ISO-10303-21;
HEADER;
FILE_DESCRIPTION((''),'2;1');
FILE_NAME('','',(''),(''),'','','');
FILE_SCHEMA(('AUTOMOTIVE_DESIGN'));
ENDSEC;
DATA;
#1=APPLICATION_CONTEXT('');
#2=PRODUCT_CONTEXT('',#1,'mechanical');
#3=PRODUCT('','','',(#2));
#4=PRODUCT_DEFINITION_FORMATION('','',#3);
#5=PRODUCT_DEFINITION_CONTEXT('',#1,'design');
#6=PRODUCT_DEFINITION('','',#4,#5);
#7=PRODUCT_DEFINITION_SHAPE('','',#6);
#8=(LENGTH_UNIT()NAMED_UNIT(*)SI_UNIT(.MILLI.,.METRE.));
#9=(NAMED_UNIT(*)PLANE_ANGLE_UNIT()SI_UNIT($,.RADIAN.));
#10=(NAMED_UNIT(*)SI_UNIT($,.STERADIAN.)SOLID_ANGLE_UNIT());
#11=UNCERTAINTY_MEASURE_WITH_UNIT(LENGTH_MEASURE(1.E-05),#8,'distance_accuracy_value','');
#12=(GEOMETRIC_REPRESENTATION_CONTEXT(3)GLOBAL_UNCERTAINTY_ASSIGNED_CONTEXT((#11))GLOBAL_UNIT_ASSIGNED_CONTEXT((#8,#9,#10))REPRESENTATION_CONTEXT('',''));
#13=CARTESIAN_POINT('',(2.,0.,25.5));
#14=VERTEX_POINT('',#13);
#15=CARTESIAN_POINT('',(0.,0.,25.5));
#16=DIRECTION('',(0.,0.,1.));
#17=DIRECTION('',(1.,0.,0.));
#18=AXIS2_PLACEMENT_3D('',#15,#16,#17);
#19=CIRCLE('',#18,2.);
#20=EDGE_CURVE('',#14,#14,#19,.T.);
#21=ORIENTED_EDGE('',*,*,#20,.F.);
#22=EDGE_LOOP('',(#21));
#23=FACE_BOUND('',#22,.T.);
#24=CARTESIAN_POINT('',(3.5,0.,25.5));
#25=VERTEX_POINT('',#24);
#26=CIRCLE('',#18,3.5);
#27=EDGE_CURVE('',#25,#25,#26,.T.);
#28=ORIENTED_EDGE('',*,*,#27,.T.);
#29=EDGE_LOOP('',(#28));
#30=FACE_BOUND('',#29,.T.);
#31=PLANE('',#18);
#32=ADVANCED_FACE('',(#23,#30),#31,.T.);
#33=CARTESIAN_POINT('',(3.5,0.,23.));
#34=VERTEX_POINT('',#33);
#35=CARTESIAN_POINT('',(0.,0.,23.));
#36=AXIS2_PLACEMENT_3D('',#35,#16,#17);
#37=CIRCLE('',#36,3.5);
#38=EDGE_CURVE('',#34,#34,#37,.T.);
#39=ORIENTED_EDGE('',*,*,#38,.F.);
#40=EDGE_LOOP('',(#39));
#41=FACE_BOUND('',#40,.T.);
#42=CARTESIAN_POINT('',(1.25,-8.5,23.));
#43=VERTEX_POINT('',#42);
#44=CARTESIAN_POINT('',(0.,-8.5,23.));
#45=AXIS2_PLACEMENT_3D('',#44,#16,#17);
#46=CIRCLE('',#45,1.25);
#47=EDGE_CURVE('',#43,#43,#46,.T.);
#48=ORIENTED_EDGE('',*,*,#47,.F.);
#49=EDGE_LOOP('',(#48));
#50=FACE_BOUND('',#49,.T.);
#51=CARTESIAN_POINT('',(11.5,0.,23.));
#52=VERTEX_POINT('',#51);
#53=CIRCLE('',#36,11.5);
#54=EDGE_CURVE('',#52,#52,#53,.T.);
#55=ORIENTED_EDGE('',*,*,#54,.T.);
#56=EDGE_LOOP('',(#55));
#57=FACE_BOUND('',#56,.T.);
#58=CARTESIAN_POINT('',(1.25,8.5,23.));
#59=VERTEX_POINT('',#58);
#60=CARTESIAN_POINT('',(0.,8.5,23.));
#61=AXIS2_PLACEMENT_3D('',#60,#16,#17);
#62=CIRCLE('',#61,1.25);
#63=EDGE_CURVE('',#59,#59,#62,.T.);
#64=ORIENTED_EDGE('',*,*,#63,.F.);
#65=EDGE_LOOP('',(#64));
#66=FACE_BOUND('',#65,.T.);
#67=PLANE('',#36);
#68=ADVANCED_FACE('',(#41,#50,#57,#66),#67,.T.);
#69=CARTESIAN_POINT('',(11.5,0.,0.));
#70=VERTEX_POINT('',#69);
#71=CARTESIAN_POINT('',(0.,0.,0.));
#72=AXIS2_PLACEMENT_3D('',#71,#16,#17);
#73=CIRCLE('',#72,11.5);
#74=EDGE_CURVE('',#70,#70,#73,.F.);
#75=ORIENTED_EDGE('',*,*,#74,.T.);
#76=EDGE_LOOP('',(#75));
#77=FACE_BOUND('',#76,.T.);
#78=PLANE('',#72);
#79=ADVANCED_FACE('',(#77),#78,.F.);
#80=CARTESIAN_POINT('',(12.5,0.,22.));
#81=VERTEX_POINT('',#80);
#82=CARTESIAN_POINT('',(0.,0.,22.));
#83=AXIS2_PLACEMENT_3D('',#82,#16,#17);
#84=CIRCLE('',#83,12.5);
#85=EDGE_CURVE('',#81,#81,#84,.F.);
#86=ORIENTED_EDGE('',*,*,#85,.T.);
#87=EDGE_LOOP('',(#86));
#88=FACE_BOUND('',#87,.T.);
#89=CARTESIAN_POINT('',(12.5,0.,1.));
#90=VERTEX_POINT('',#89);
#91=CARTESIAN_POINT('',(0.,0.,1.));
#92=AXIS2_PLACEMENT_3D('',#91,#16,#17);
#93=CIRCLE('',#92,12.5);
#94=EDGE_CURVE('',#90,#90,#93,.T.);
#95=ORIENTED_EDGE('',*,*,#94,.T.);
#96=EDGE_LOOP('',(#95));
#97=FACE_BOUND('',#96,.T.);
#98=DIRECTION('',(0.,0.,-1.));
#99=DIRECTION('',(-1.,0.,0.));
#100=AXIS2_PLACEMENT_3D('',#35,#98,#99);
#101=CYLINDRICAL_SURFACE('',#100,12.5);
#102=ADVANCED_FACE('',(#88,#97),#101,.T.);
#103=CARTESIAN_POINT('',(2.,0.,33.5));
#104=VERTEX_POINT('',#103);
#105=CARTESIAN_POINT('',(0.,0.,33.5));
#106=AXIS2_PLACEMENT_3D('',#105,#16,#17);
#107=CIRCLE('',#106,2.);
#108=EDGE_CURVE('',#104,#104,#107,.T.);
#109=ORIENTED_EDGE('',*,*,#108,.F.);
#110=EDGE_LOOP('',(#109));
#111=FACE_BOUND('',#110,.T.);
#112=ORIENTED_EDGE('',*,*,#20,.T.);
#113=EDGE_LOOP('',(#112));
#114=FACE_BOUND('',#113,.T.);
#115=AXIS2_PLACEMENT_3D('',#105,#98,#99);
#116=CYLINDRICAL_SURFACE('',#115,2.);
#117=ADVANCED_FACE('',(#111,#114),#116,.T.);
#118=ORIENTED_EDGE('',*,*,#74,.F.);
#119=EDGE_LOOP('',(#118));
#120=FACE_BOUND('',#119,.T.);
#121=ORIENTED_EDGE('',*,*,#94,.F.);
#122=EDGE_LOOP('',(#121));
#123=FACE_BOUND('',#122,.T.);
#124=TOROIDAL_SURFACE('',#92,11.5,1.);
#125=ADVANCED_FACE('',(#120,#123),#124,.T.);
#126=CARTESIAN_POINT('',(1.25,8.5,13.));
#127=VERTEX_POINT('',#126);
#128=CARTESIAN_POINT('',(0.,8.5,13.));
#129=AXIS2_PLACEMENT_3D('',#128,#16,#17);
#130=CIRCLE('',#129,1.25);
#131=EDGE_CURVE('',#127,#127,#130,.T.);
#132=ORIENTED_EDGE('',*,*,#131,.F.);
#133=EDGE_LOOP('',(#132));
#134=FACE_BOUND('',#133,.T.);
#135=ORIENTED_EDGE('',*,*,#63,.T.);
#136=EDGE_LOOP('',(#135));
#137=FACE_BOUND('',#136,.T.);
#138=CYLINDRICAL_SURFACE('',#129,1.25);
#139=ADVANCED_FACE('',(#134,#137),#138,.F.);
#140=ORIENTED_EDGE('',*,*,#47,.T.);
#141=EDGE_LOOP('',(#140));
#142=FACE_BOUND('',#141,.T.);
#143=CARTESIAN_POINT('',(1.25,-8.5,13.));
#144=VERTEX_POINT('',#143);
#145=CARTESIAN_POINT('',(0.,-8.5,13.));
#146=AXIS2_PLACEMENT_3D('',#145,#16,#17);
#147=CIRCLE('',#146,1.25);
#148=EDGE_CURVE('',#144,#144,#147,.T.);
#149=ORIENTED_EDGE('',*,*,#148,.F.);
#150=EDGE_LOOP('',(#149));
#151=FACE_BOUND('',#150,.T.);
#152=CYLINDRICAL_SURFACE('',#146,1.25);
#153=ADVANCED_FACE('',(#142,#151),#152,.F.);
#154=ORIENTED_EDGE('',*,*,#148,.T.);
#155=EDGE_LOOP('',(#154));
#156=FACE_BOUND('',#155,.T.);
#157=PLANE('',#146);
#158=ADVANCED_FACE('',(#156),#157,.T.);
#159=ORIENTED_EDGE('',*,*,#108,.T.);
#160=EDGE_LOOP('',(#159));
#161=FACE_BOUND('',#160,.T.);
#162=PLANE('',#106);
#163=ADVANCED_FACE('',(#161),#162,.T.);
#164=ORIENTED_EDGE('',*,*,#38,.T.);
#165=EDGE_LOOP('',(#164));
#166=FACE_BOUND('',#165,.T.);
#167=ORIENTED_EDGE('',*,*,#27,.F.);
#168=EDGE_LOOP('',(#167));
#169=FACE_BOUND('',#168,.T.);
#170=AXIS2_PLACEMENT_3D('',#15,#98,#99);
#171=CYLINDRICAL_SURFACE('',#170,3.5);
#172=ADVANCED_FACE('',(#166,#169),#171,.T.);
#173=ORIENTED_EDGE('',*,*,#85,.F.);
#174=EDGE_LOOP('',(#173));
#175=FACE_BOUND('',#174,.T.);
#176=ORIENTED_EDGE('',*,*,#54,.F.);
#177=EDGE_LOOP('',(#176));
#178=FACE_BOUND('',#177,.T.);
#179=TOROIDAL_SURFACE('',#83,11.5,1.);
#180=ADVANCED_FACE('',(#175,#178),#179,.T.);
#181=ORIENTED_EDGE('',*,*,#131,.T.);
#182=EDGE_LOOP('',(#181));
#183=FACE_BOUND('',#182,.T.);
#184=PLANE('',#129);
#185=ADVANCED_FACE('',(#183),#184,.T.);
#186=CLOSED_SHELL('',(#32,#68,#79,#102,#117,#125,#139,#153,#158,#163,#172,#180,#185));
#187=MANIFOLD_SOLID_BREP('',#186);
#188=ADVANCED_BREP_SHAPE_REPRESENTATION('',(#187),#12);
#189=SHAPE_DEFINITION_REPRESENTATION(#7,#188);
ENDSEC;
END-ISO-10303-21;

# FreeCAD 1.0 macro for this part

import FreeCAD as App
import Part
import Sketcher
from FreeCAD import Vector


def edges_at(feature, points):
    """Names of the edges that pass closest to the given points."""
    edges = feature.Shape.Edges
    near = lambda p: min(range(len(edges)), key=lambda i: edges[i].distToShape(Part.Vertex(*p))[0])
    return sorted({f"Edge{near(p) + 1}" for p in points})

doc = App.newDocument("Part")
body = doc.addObject("PartDesign::Body", "Body")

# Sketch on XY plane
sketch1 = doc.addObject("Sketcher::SketchObject", "Sketch")
body.addObject(sketch1)
sketch1.AttachmentSupport = (doc.XY_Plane, [""])
sketch1.MapMode = "FlatFace"
sketch1.addGeometry(Part.Circle(Vector(0, 0, 0), Vector(0, 0, 1), 12), False)
sketch1.addConstraint([
    Sketcher.Constraint("Coincident", 0, 3, -1, 1),
    Sketcher.Constraint("Diameter", 0, 25.0),
])
pad1 = doc.addObject("PartDesign::Pad", "Pad")
body.addObject(pad1)
pad1.Profile = sketch1
pad1.Length = 23

# Sketch on XY plane
sketch2 = doc.addObject("Sketcher::SketchObject", "Sketch001")
body.addObject(sketch2)
sketch2.AttachmentSupport = (doc.XY_Plane, [""])
sketch2.MapMode = "FlatFace"
sketch2.AttachmentOffset = App.Placement(Vector(0, 0, 23), App.Rotation())
sketch2.addGeometry(Part.Circle(Vector(0, 0, 0), Vector(0, 0, 1), 3.5), False)
sketch2.addConstraint([
    Sketcher.Constraint("Coincident", 0, 3, -1, 1),
    Sketcher.Constraint("Diameter", 0, 7.0),
])
pad2 = doc.addObject("PartDesign::Pad", "Pad001")
body.addObject(pad2)
pad2.Profile = sketch2
pad2.Length = 2.5
doc.recompute()

fillet = doc.addObject("PartDesign::Fillet", "Fillet")
body.addObject(fillet)
fillet.Base = (pad2, edges_at(pad2, [(-12.5, 0, 0), (-12.5, 0, 23)]))
fillet.Radius = 1

# Sketch on XY plane
sketch3 = doc.addObject("Sketcher::SketchObject", "Sketch002")
body.addObject(sketch3)
sketch3.AttachmentSupport = (doc.XY_Plane, [""])
sketch3.MapMode = "FlatFace"
sketch3.AttachmentOffset = App.Placement(Vector(0, 0, 25.5), App.Rotation())
sketch3.addGeometry(Part.Circle(Vector(0, 0, 0), Vector(0, 0, 1), 2), False)
sketch3.addConstraint([
    Sketcher.Constraint("Coincident", 0, 3, -1, 1),
    Sketcher.Constraint("Diameter", 0, 4.0),
])
pad3 = doc.addObject("PartDesign::Pad", "Pad002")
body.addObject(pad3)
pad3.Profile = sketch3
pad3.Length = 8

# Sketch on XY plane
sketch4 = doc.addObject("Sketcher::SketchObject", "Sketch003")
body.addObject(sketch4)
sketch4.AttachmentSupport = (doc.XY_Plane, [""])
sketch4.MapMode = "FlatFace"
sketch4.AttachmentOffset = App.Placement(Vector(0, 0, 23), App.Rotation())
sketch4.addGeometry([
    Part.Circle(Vector(0, 8.5, 0), Vector(0, 0, 1), 1.2),
    Part.Circle(Vector(0, -8.5, 0), Vector(0, 0, 1), 1.2),
], False)
sketch4.addConstraint([
    Sketcher.Constraint("Equal", 0, 1),
    Sketcher.Constraint("Symmetric", 0, 3, 1, 3, -1, 1),
    Sketcher.Constraint("PointOnObject", 0, 3, -2),
    Sketcher.Constraint("Diameter", 0, 2.5),
    Sketcher.Constraint("DistanceY", 1, 3, 0, 3, 17.0),
])
pocket1 = doc.addObject("PartDesign::Pocket", "Pocket")
body.addObject(pocket1)
pocket1.Profile = sketch4
pocket1.Length = 10

doc.recompute()
